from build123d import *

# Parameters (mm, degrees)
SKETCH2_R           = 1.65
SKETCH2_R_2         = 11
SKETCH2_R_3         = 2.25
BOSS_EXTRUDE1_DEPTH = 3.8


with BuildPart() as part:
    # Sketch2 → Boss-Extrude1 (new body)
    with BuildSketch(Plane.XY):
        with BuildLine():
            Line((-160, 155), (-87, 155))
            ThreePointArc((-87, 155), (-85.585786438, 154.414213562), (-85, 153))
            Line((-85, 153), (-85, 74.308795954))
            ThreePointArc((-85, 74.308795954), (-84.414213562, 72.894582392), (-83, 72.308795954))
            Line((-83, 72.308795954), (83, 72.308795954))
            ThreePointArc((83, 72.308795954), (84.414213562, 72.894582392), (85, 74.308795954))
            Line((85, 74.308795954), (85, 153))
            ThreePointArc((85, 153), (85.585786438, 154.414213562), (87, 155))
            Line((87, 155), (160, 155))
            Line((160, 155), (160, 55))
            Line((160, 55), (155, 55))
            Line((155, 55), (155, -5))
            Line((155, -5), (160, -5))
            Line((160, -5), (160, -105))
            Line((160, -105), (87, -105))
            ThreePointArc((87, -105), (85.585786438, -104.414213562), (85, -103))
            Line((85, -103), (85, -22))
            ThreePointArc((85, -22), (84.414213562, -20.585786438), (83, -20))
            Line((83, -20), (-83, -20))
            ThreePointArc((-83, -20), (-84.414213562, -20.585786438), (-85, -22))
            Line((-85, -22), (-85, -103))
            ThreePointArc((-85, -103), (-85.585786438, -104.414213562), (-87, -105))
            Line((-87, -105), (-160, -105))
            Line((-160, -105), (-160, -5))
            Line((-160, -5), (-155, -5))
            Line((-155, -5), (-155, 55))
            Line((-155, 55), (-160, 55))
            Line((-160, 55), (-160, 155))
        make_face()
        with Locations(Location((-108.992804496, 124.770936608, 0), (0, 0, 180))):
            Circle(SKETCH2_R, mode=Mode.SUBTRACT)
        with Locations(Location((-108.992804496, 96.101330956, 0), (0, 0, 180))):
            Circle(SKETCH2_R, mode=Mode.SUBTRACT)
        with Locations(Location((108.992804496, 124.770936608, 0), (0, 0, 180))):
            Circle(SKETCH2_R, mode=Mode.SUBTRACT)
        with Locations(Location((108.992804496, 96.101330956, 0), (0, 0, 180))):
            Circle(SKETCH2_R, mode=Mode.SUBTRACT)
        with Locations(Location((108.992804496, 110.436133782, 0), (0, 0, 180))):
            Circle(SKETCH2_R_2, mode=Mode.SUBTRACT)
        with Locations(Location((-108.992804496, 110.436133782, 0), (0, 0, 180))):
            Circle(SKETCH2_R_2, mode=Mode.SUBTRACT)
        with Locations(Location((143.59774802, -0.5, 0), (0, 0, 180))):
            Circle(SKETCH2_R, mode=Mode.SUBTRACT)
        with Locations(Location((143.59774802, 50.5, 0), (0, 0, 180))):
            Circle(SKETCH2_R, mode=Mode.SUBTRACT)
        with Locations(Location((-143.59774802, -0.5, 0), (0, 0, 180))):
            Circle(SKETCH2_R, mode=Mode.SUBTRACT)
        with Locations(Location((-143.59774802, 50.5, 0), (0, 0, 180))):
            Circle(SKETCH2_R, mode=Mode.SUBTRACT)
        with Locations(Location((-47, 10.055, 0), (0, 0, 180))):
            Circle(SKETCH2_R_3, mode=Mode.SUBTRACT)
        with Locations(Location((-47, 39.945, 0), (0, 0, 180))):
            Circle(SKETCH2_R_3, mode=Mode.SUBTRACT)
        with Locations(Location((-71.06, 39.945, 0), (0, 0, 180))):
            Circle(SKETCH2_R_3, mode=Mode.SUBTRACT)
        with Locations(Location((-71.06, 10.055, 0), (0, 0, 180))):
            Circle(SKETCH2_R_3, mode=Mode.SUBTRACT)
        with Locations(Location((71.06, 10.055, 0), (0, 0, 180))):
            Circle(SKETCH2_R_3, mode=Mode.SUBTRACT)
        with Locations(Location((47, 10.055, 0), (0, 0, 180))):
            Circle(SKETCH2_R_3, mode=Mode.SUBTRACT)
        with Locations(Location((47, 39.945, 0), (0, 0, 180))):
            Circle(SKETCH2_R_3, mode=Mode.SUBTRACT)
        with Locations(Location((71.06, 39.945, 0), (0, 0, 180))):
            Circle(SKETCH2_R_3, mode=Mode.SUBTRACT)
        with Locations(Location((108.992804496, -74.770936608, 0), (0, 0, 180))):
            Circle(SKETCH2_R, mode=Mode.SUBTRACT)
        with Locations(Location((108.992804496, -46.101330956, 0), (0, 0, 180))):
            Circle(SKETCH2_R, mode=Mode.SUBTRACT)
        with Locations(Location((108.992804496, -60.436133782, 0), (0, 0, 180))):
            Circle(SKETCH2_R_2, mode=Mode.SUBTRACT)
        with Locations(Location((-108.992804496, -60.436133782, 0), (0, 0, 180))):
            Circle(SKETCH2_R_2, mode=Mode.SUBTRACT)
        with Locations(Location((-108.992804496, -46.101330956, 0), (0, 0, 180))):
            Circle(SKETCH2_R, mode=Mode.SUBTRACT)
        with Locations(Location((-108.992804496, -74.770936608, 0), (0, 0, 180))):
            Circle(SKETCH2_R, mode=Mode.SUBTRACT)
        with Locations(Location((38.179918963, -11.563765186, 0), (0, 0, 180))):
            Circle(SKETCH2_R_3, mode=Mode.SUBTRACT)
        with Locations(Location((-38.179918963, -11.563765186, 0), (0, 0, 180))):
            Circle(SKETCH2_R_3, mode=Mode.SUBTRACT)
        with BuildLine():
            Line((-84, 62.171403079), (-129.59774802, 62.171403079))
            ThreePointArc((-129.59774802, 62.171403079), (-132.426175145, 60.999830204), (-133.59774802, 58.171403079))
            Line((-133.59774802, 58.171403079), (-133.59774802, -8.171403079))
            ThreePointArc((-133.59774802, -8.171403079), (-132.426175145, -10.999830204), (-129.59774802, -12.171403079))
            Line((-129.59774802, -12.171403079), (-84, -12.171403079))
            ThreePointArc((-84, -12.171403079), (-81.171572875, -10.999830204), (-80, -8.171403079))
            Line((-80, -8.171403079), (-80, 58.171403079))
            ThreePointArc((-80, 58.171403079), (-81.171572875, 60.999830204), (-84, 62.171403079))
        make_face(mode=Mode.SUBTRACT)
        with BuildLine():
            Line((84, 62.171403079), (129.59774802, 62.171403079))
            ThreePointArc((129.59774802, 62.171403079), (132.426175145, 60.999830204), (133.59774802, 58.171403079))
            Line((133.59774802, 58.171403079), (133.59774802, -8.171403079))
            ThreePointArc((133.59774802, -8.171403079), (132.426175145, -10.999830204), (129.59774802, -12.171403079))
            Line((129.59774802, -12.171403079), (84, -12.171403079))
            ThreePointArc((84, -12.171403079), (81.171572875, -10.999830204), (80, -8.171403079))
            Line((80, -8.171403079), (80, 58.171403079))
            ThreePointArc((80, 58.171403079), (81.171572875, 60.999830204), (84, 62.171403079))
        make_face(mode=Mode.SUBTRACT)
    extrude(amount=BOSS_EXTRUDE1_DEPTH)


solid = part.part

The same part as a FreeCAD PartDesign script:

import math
import FreeCAD as App
import Part
import Sketcher
from FreeCAD import Vector

doc = App.newDocument("Part")
body = doc.addObject("PartDesign::Body", "Body")

sketch1 = body.newObject("Sketcher::SketchObject", "Sketch")
sketch1.AttachmentSupport = (doc.getObject("XY_Plane"), [""])
sketch1.MapMode = "FlatFace"
sketch1.addGeometry(Part.LineSegment(Vector(-87, 155, 0), Vector(-160, 155, 0)), False)
sketch1.addGeometry(Part.LineSegment(Vector(-160, 155, 0), Vector(-160, 55, 0)), False)
sketch1.addGeometry(Part.LineSegment(Vector(-160, 55, 0), Vector(-155, 55, 0)), False)
sketch1.addGeometry(Part.LineSegment(Vector(-155, 55, 0), Vector(-155, -5, 0)), False)
sketch1.addGeometry(Part.LineSegment(Vector(-155, -5, 0), Vector(-160, -5, 0)), False)
sketch1.addGeometry(Part.LineSegment(Vector(-160, -5, 0), Vector(-160, -105, 0)), False)
sketch1.addGeometry(Part.LineSegment(Vector(-160, -105, 0), Vector(-87, -105, 0)), False)
sketch1.addGeometry(Part.ArcOfCircle(Part.Circle(Vector(-87, -103, 0), Vector(0, 0, 1), 2), math.radians(-90), math.radians(0)), False)
sketch1.addGeometry(Part.LineSegment(Vector(-85, -103, 0), Vector(-85, -22, 0)), False)
sketch1.addGeometry(Part.ArcOfCircle(Part.Circle(Vector(-83, -22, 0), Vector(0, 0, 1), 2), math.radians(90), math.radians(180)), False)
sketch1.addGeometry(Part.LineSegment(Vector(-83, -20, 0), Vector(83, -20, 0)), False)
sketch1.addGeometry(Part.ArcOfCircle(Part.Circle(Vector(83, -22, 0), Vector(0, 0, 1), 2), math.radians(0), math.radians(90)), False)
sketch1.addGeometry(Part.LineSegment(Vector(85, -22, 0), Vector(85, -103, 0)), False)
sketch1.addGeometry(Part.ArcOfCircle(Part.Circle(Vector(87, -103, 0), Vector(0, 0, 1), 2), math.radians(-180), math.radians(-90)), False)
sketch1.addGeometry(Part.LineSegment(Vector(87, -105, 0), Vector(160, -105, 0)), False)
sketch1.addGeometry(Part.LineSegment(Vector(160, -105, 0), Vector(160, -5, 0)), False)
sketch1.addGeometry(Part.LineSegment(Vector(160, -5, 0), Vector(155, -5, 0)), False)
sketch1.addGeometry(Part.LineSegment(Vector(155, -5, 0), Vector(155, 55, 0)), False)
sketch1.addGeometry(Part.LineSegment(Vector(155, 55, 0), Vector(160, 55, 0)), False)
sketch1.addGeometry(Part.LineSegment(Vector(160, 55, 0), Vector(160, 155, 0)), False)
sketch1.addGeometry(Part.LineSegment(Vector(160, 155, 0), Vector(87, 155, 0)), False)
sketch1.addGeometry(Part.ArcOfCircle(Part.Circle(Vector(87, 153, 0), Vector(0, 0, 1), 2), math.radians(90), math.radians(180)), False)
sketch1.addGeometry(Part.LineSegment(Vector(85, 153, 0), Vector(85, 74.3, 0)), False)
sketch1.addGeometry(Part.ArcOfCircle(Part.Circle(Vector(83, 74.3, 0), Vector(0, 0, 1), 2), math.radians(-90), math.radians(0)), False)
sketch1.addGeometry(Part.LineSegment(Vector(83, 72.3, 0), Vector(-83, 72.3, 0)), False)
sketch1.addGeometry(Part.ArcOfCircle(Part.Circle(Vector(-83, 74.3, 0), Vector(0, 0, 1), 2), math.radians(-180), math.radians(-90)), False)
sketch1.addGeometry(Part.LineSegment(Vector(-85, 74.3, 0), Vector(-85, 153, 0)), False)
sketch1.addGeometry(Part.ArcOfCircle(Part.Circle(Vector(-87, 153, 0), Vector(0, 0, 1), 2), math.radians(0), math.radians(90)), False)
sketch1.addGeometry(Part.Circle(Vector(109, -74.8, 0), Vector(0, 0, 1), 1.6), False)
sketch1.addGeometry(Part.Circle(Vector(109, -60.4, 0), Vector(0, 0, 1), 11), False)
sketch1.addGeometry(Part.Circle(Vector(109, -46.1, 0), Vector(0, 0, 1), 1.6), False)
sketch1.addGeometry(Part.Circle(Vector(143.6, -0.5, 0), Vector(0, 0, 1), 1.6), False)
sketch1.addGeometry(Part.Circle(Vector(38.2, -11.6, 0), Vector(0, 0, 1), 2.2), False)
sketch1.addGeometry(Part.Circle(Vector(71.1, 10.1, 0), Vector(0, 0, 1), 2.2), False)
sketch1.addGeometry(Part.Circle(Vector(47, 10.1, 0), Vector(0, 0, 1), 2.2), False)
sketch1.addGeometry(Part.Circle(Vector(-109, -74.8, 0), Vector(0, 0, 1), 1.6), False)
sketch1.addGeometry(Part.Circle(Vector(-109, -60.4, 0), Vector(0, 0, 1), 11), False)
sketch1.addGeometry(Part.Circle(Vector(-109, -46.1, 0), Vector(0, 0, 1), 1.6), False)
sketch1.addGeometry(Part.Circle(Vector(-38.2, -11.6, 0), Vector(0, 0, 1), 2.2), False)
sketch1.addGeometry(Part.Circle(Vector(-47, 10.1, 0), Vector(0, 0, 1), 2.2), False)
sketch1.addGeometry(Part.Circle(Vector(-71.1, 10.1, 0), Vector(0, 0, 1), 2.2), False)
sketch1.addGeometry(Part.Circle(Vector(-143.6, -0.5, 0), Vector(0, 0, 1), 1.6), False)
sketch1.addGeometry(Part.LineSegment(Vector(84, 62.2, 0), Vector(129.6, 62.2, 0)), False)
sketch1.addGeometry(Part.ArcOfCircle(Part.Circle(Vector(129.6, 58.2, 0), Vector(0, 0, 1), 4), math.radians(0), math.radians(90)), False)
sketch1.addGeometry(Part.LineSegment(Vector(133.6, 58.2, 0), Vector(133.6, -8.2, 0)), False)
sketch1.addGeometry(Part.ArcOfCircle(Part.Circle(Vector(129.6, -8.2, 0), Vector(0, 0, 1), 4), math.radians(-90), math.radians(0)), False)
sketch1.addGeometry(Part.LineSegment(Vector(129.6, -12.2, 0), Vector(84, -12.2, 0)), False)
sketch1.addGeometry(Part.ArcOfCircle(Part.Circle(Vector(84, -8.2, 0), Vector(0, 0, 1), 4), math.radians(180), math.radians(270)), False)
sketch1.addGeometry(Part.LineSegment(Vector(80, -8.2, 0), Vector(80, 58.2, 0)), False)
sketch1.addGeometry(Part.ArcOfCircle(Part.Circle(Vector(84, 58.2, 0), Vector(0, 0, 1), 4), math.radians(90), math.radians(180)), False)
sketch1.addGeometry(Part.Circle(Vector(143.6, 50.5, 0), Vector(0, 0, 1), 1.6), False)
sketch1.addGeometry(Part.Circle(Vector(71.1, 39.9, 0), Vector(0, 0, 1), 2.2), False)
sketch1.addGeometry(Part.Circle(Vector(47, 39.9, 0), Vector(0, 0, 1), 2.2), False)
sketch1.addGeometry(Part.Circle(Vector(109, 96.1, 0), Vector(0, 0, 1), 1.6), False)
sketch1.addGeometry(Part.Circle(Vector(109, 110.4, 0), Vector(0, 0, 1), 11), False)
sketch1.addGeometry(Part.Circle(Vector(109, 124.8, 0), Vector(0, 0, 1), 1.6), False)
sketch1.addGeometry(Part.Circle(Vector(-47, 39.9, 0), Vector(0, 0, 1), 2.2), False)
sketch1.addGeometry(Part.Circle(Vector(-71.1, 39.9, 0), Vector(0, 0, 1), 2.2), False)
sketch1.addGeometry(Part.ArcOfCircle(Part.Circle(Vector(-84, 58.2, 0), Vector(0, 0, 1), 4), math.radians(0), math.radians(90)), False)
sketch1.addGeometry(Part.LineSegment(Vector(-80, 58.2, 0), Vector(-80, -8.2, 0)), False)
sketch1.addGeometry(Part.ArcOfCircle(Part.Circle(Vector(-84, -8.2, 0), Vector(0, 0, 1), 4), math.radians(-90), math.radians(0)), False)
sketch1.addGeometry(Part.LineSegment(Vector(-84, -12.2, 0), Vector(-129.6, -12.2, 0)), False)
sketch1.addGeometry(Part.ArcOfCircle(Part.Circle(Vector(-129.6, -8.2, 0), Vector(0, 0, 1), 4), math.radians(180), math.radians(270)), False)
sketch1.addGeometry(Part.LineSegment(Vector(-133.6, -8.2, 0), Vector(-133.6, 58.2, 0)), False)
sketch1.addGeometry(Part.ArcOfCircle(Part.Circle(Vector(-129.6, 58.2, 0), Vector(0, 0, 1), 4), math.radians(90), math.radians(180)), False)
sketch1.addGeometry(Part.LineSegment(Vector(-129.6, 62.2, 0), Vector(-84, 62.2, 0)), False)
sketch1.addGeometry(Part.Circle(Vector(-143.6, 50.5, 0), Vector(0, 0, 1), 1.6), False)
sketch1.addGeometry(Part.Circle(Vector(-109, 96.1, 0), Vector(0, 0, 1), 1.6), False)
sketch1.addGeometry(Part.Circle(Vector(-109, 110.4, 0), Vector(0, 0, 1), 11), False)
sketch1.addGeometry(Part.Circle(Vector(-109, 124.8, 0), Vector(0, 0, 1), 1.6), False)
sketch1.addConstraint(Sketcher.Constraint("Coincident", 0, 2, 1, 1))
sketch1.addConstraint(Sketcher.Constraint("Coincident", 1, 2, 2, 1))
sketch1.addConstraint(Sketcher.Constraint("Coincident", 2, 2, 3, 1))
sketch1.addConstraint(Sketcher.Constraint("Coincident", 3, 2, 4, 1))
sketch1.addConstraint(Sketcher.Constraint("Coincident", 4, 2, 5, 1))
sketch1.addConstraint(Sketcher.Constraint("Coincident", 5, 2, 6, 1))
sketch1.addConstraint(Sketcher.Constraint("Tangent", 6, 2, 7, 1))
sketch1.addConstraint(Sketcher.Constraint("Tangent", 7, 2, 8, 1))
sketch1.addConstraint(Sketcher.Constraint("Tangent", 8, 2, 9, 2))
sketch1.addConstraint(Sketcher.Constraint("Tangent", 9, 1, 10, 1))
sketch1.addConstraint(Sketcher.Constraint("Tangent", 10, 2, 11, 2))
sketch1.addConstraint(Sketcher.Constraint("Tangent", 11, 1, 12, 1))
sketch1.addConstraint(Sketcher.Constraint("Tangent", 12, 2, 13, 1))
sketch1.addConstraint(Sketcher.Constraint("Tangent", 13, 2, 14, 1))
sketch1.addConstraint(Sketcher.Constraint("Coincident", 14, 2, 15, 1))
sketch1.addConstraint(Sketcher.Constraint("Coincident", 15, 2, 16, 1))
sketch1.addConstraint(Sketcher.Constraint("Coincident", 16, 2, 17, 1))
sketch1.addConstraint(Sketcher.Constraint("Coincident", 17, 2, 18, 1))
sketch1.addConstraint(Sketcher.Constraint("Coincident", 18, 2, 19, 1))
sketch1.addConstraint(Sketcher.Constraint("Coincident", 19, 2, 20, 1))
sketch1.addConstraint(Sketcher.Constraint("Tangent", 20, 2, 21, 1))
sketch1.addConstraint(Sketcher.Constraint("Tangent", 21, 2, 22, 1))
sketch1.addConstraint(Sketcher.Constraint("Tangent", 22, 2, 23, 2))
sketch1.addConstraint(Sketcher.Constraint("Tangent", 23, 1, 24, 1))
sketch1.addConstraint(Sketcher.Constraint("Tangent", 24, 2, 25, 2))
sketch1.addConstraint(Sketcher.Constraint("Tangent", 25, 1, 26, 1))
sketch1.addConstraint(Sketcher.Constraint("Tangent", 26, 2, 27, 1))
sketch1.addConstraint(Sketcher.Constraint("Tangent", 27, 2, 0, 1))
sketch1.addConstraint(Sketcher.Constraint("Tangent", 42, 2, 43, 2))
sketch1.addConstraint(Sketcher.Constraint("Tangent", 43, 1, 44, 1))
sketch1.addConstraint(Sketcher.Constraint("Tangent", 44, 2, 45, 2))
sketch1.addConstraint(Sketcher.Constraint("Tangent", 45, 1, 46, 1))
sketch1.addConstraint(Sketcher.Constraint("Tangent", 46, 2, 47, 2))
sketch1.addConstraint(Sketcher.Constraint("Tangent", 47, 1, 48, 1))
sketch1.addConstraint(Sketcher.Constraint("Tangent", 48, 2, 49, 2))
sketch1.addConstraint(Sketcher.Constraint("Tangent", 49, 1, 42, 1))
sketch1.addConstraint(Sketcher.Constraint("Tangent", 58, 1, 59, 1))
sketch1.addConstraint(Sketcher.Constraint("Tangent", 59, 2, 60, 2))
sketch1.addConstraint(Sketcher.Constraint("Tangent", 60, 1, 61, 1))
sketch1.addConstraint(Sketcher.Constraint("Tangent", 61, 2, 62, 2))
sketch1.addConstraint(Sketcher.Constraint("Tangent", 62, 1, 63, 1))
sketch1.addConstraint(Sketcher.Constraint("Tangent", 63, 2, 64, 2))
sketch1.addConstraint(Sketcher.Constraint("Tangent", 64, 1, 65, 1))
sketch1.addConstraint(Sketcher.Constraint("Tangent", 65, 2, 58, 2))
sketch1.addConstraint(Sketcher.Constraint("Horizontal", 0))
sketch1.addConstraint(Sketcher.Constraint("Vertical", 1))
sketch1.addConstraint(Sketcher.Constraint("Horizontal", 2))
sketch1.addConstraint(Sketcher.Constraint("Vertical", 3))
sketch1.addConstraint(Sketcher.Constraint("Horizontal", 4))
sketch1.addConstraint(Sketcher.Constraint("Vertical", 5))
sketch1.addConstraint(Sketcher.Constraint("Horizontal", 6))
sketch1.addConstraint(Sketcher.Constraint("Vertical", 8))
sketch1.addConstraint(Sketcher.Constraint("Horizontal", 10))
sketch1.addConstraint(Sketcher.Constraint("Vertical", 12))
sketch1.addConstraint(Sketcher.Constraint("Horizontal", 14))
sketch1.addConstraint(Sketcher.Constraint("Vertical", 15))
sketch1.addConstraint(Sketcher.Constraint("Horizontal", 16))
sketch1.addConstraint(Sketcher.Constraint("Vertical", 17))
sketch1.addConstraint(Sketcher.Constraint("Horizontal", 18))
sketch1.addConstraint(Sketcher.Constraint("Vertical", 19))
sketch1.addConstraint(Sketcher.Constraint("Horizontal", 20))
sketch1.addConstraint(Sketcher.Constraint("Vertical", 22))
sketch1.addConstraint(Sketcher.Constraint("Horizontal", 24))
sketch1.addConstraint(Sketcher.Constraint("Vertical", 26))
sketch1.addConstraint(Sketcher.Constraint("Horizontal", 42))
sketch1.addConstraint(Sketcher.Constraint("Vertical", 44))
sketch1.addConstraint(Sketcher.Constraint("Horizontal", 46))
sketch1.addConstraint(Sketcher.Constraint("Vertical", 48))
sketch1.addConstraint(Sketcher.Constraint("Vertical", 59))
sketch1.addConstraint(Sketcher.Constraint("Horizontal", 61))
sketch1.addConstraint(Sketcher.Constraint("Vertical", 63))
sketch1.addConstraint(Sketcher.Constraint("Horizontal", 65))
sketch1.addConstraint(Sketcher.Constraint("Equal", 7, 9))
sketch1.addConstraint(Sketcher.Constraint("Equal", 9, 11))
sketch1.addConstraint(Sketcher.Constraint("Equal", 11, 13))
sketch1.addConstraint(Sketcher.Constraint("Equal", 13, 21))
sketch1.addConstraint(Sketcher.Constraint("Equal", 21, 23))
sketch1.addConstraint(Sketcher.Constraint("Equal", 23, 25))
sketch1.addConstraint(Sketcher.Constraint("Equal", 25, 27))
sketch1.addConstraint(Sketcher.Constraint("Equal", 28, 30))
sketch1.addConstraint(Sketcher.Constraint("Equal", 30, 31))
sketch1.addConstraint(Sketcher.Constraint("Equal", 32, 33))
sketch1.addConstraint(Sketcher.Constraint("Equal", 33, 34))
sketch1.addConstraint(Sketcher.Constraint("Equal", 31, 35))
sketch1.addConstraint(Sketcher.Constraint("Equal", 29, 36))
sketch1.addConstraint(Sketcher.Constraint("Equal", 35, 37))
sketch1.addConstraint(Sketcher.Constraint("Equal", 34, 38))
sketch1.addConstraint(Sketcher.Constraint("Equal", 38, 39))
sketch1.addConstraint(Sketcher.Constraint("Equal", 39, 40))
sketch1.addConstraint(Sketcher.Constraint("Equal", 37, 41))
sketch1.addConstraint(Sketcher.Constraint("Equal", 43, 45))
sketch1.addConstraint(Sketcher.Constraint("Equal", 45, 47))
sketch1.addConstraint(Sketcher.Constraint("Equal", 47, 49))
sketch1.addConstraint(Sketcher.Constraint("Equal", 41, 50))
sketch1.addConstraint(Sketcher.Constraint("Equal", 40, 51))
sketch1.addConstraint(Sketcher.Constraint("Equal", 51, 52))
sketch1.addConstraint(Sketcher.Constraint("Equal", 50, 53))
sketch1.addConstraint(Sketcher.Constraint("Equal", 36, 54))
sketch1.addConstraint(Sketcher.Constraint("Equal", 53, 55))
sketch1.addConstraint(Sketcher.Constraint("Equal", 52, 56))
sketch1.addConstraint(Sketcher.Constraint("Equal", 56, 57))
sketch1.addConstraint(Sketcher.Constraint("Equal", 49, 58))
sketch1.addConstraint(Sketcher.Constraint("Equal", 58, 60))
sketch1.addConstraint(Sketcher.Constraint("Equal", 60, 62))
sketch1.addConstraint(Sketcher.Constraint("Equal", 62, 64))
sketch1.addConstraint(Sketcher.Constraint("Equal", 55, 66))
sketch1.addConstraint(Sketcher.Constraint("Equal", 66, 67))
sketch1.addConstraint(Sketcher.Constraint("Equal", 54, 68))
sketch1.addConstraint(Sketcher.Constraint("Equal", 67, 69))
sketch1.addConstraint(Sketcher.Constraint("Symmetric", 7, 3, 13, 3, -2))
sketch1.addConstraint(Sketcher.Constraint("Symmetric", 21, 3, 27, 3, -2))
sketch1.addConstraint(Sketcher.Constraint("Symmetric", 28, 3, 35, 3, -2))
sketch1.addConstraint(Sketcher.Constraint("Symmetric", 29, 3, 36, 3, -2))
sketch1.addConstraint(Sketcher.Constraint("Symmetric", 30, 3, 37, 3, -2))
sketch1.addConstraint(Sketcher.Constraint("Symmetric", 32, 3, 38, 3, -2))
sketch1.addConstraint(Sketcher.Constraint("Symmetric", 34, 3, 39, 3, -2))
sketch1.addConstraint(Sketcher.Constraint("Symmetric", 33, 3, 40, 3, -2))
sketch1.addConstraint(Sketcher.Constraint("Symmetric", 31, 3, 41, 3, -2))
sketch1.addConstraint(Sketcher.Constraint("Symmetric", 52, 3, 56, 3, -2))
sketch1.addConstraint(Sketcher.Constraint("Symmetric", 51, 3, 57, 3, -2))
sketch1.addConstraint(Sketcher.Constraint("Symmetric", 49, 3, 58, 3, -2))
sketch1.addConstraint(Sketcher.Constraint("Symmetric", 45, 3, 62, 3, -2))
sketch1.addConstraint(Sketcher.Constraint("Symmetric", 50, 3, 66, 3, -2))
sketch1.addConstraint(Sketcher.Constraint("Symmetric", 53, 3, 67, 3, -2))
sketch1.addConstraint(Sketcher.Constraint("Symmetric", 54, 3, 68, 3, -2))
sketch1.addConstraint(Sketcher.Constraint("Symmetric", 55, 3, 69, 3, -2))
sketch1.addConstraint(Sketcher.Constraint("Symmetric", 4, 2, 15, 2, -2))
sketch1.addConstraint(Sketcher.Constraint("Symmetric", 2, 2, 17, 2, -2))
sketch1.addConstraint(Sketcher.Constraint("Horizontal", 33, 3, 34, 3))
sketch1.addConstraint(Sketcher.Constraint("Horizontal", 51, 3, 52, 3))
sketch1.addConstraint(Sketcher.Constraint("Vertical", 13, 3, 21, 3))
sketch1.addConstraint(Sketcher.Constraint("Vertical", 28, 3, 29, 3))
sketch1.addConstraint(Sketcher.Constraint("Vertical", 29, 3, 30, 3))
sketch1.addConstraint(Sketcher.Constraint("Vertical", 31, 3, 50, 3))
sketch1.addConstraint(Sketcher.Constraint("Vertical", 33, 3, 51, 3))
sketch1.addConstraint(Sketcher.Constraint("Vertical", 34, 3, 52, 3))
sketch1.addConstraint(Sketcher.Constraint("Vertical", 30, 3, 53, 3))
sketch1.addConstraint(Sketcher.Constraint("Vertical", 53, 3, 54, 3))
sketch1.addConstraint(Sketcher.Constraint("Vertical", 54, 3, 55, 3))
sketch1.addConstraint(Sketcher.Constraint("Vertical", 1, 2, 4, 2))
sketch1.addConstraint(Sketcher.Constraint("Vertical", 15, 2, 18, 2))
sketch1.addConstraint(Sketcher.Constraint("Equal", 1, 5))
sketch1.addConstraint(Sketcher.Constraint("Diameter", 29, 22.0))
sketch1.addConstraint(Sketcher.Constraint("Radius", 7, 2.0))
sketch1.addConstraint(Sketcher.Constraint("Radius", 43, 4.0))
sketch1.addConstraint(Sketcher.Constraint("Diameter", 28, 3.3))
sketch1.addConstraint(Sketcher.Constraint("Diameter", 32, 4.5))
sketch1.addConstraint(Sketcher.Constraint("DistanceX", 0, 2, 0, 1, 73.0))
sketch1.addConstraint(Sketcher.Constraint("DistanceX", 2, 1, 2, 2, 5.0))
sketch1.addConstraint(Sketcher.Constraint("DistanceX", 10, 1, 10, 2, 166.0))
sketch1.addConstraint(Sketcher.Constraint("DistanceY", 1, 2, 1, 1, 100.0))
sketch1.addConstraint(Sketcher.Constraint("DistanceY", 3, 2, 3, 1, 60.0))
sketch1.addConstraint(Sketcher.Constraint("DistanceY", 8, 1, 8, 2, 81.0))
sketch1.addConstraint(Sketcher.Constraint("DistanceY", 7, 3, -1, 1, 103.0))
sketch1.addConstraint(Sketcher.Constraint("DistanceX", -1, 1, 34, 3, 47.0))
sketch1.addConstraint(Sketcher.Constraint("DistanceX", -1, 1, 47, 3, 84.0))
sketch1.addConstraint(Sketcher.Constraint("DistanceY", 31, 3, -1, 1, 0.5))
sketch1.addConstraint(Sketcher.Constraint("DistanceY", -1, 1, 50, 3, 50.5))
sketch1.addConstraint(Sketcher.Constraint("DistanceX", -1, 1, 33, 3, 71.06))
sketch1.addConstraint(Sketcher.Constraint("DistanceY", -1, 1, 33, 3, 10.055))
sketch1.addConstraint(Sketcher.Constraint("DistanceY", -1, 1, 51, 3, 39.945))
sketch1.addConstraint(Sketcher.Constraint("DistanceX", 42, 1, 42, 2, 45.597748))
sketch1.addConstraint(Sketcher.Constraint("DistanceY", 22, 2, 22, 1, 78.691204))
sketch1.addConstraint(Sketcher.Constraint("DistanceY", 44, 2, 44, 1, 66.342806))
sketch1.addConstraint(Sketcher.Constraint("DistanceY", 30, 3, -1, 1, 46.101331))
sketch1.addConstraint(Sketcher.Constraint("DistanceX", -1, 1, 31, 3, 143.597748))
sketch1.addConstraint(Sketcher.Constraint("DistanceX", -1, 1, 32, 3, 38.179919))
sketch1.addConstraint(Sketcher.Constraint("DistanceY", -1, 1, 53, 3, 96.101331))
sketch1.addConstraint(Sketcher.Constraint("DistanceX", -1, 1, 28, 3, 108.992804))
sketch1.addConstraint(Sketcher.Constraint("DistanceY", 28, 3, -1, 1, 74.770937))
sketch1.addConstraint(Sketcher.Constraint("DistanceY", 29, 3, -1, 1, 60.436134))
sketch1.addConstraint(Sketcher.Constraint("DistanceY", 32, 3, -1, 1, 11.563765))
sketch1.addConstraint(Sketcher.Constraint("DistanceY", -1, 1, 43, 3, 58.171403))
sketch1.addConstraint(Sketcher.Constraint("DistanceY", -1, 1, 54, 3, 110.436134))
sketch1.addConstraint(Sketcher.Constraint("DistanceY", -1, 1, 55, 3, 124.770937))
pad1 = body.newObject("PartDesign::Pad", "Pad")
pad1.Profile = sketch1
pad1.Length = 3.8

doc.recompute()
